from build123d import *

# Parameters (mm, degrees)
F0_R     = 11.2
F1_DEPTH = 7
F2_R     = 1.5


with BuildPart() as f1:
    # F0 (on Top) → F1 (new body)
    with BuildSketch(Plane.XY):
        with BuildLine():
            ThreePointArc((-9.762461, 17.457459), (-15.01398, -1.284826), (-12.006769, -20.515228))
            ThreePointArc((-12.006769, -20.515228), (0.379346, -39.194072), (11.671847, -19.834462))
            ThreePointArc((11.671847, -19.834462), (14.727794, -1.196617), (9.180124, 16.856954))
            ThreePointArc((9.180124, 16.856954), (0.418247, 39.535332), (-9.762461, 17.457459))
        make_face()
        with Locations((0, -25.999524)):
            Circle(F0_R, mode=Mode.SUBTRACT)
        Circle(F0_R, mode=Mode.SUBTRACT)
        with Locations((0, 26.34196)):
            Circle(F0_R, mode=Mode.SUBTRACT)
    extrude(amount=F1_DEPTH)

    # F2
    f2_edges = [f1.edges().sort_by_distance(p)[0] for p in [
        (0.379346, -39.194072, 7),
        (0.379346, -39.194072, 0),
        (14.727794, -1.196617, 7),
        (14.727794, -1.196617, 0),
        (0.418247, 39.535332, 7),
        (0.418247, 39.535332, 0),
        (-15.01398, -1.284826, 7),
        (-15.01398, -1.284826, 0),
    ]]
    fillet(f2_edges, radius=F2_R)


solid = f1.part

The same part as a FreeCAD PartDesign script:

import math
import FreeCAD as App
import Part
import Sketcher
from FreeCAD import Vector


def edges_at(feature, points):
    """Names of the edges that pass closest to the given points."""
    edges = feature.Shape.Edges
    near = lambda p: min(range(len(edges)), key=lambda i: edges[i].distToShape(Part.Vertex(*p))[0])
    return sorted({f"Edge{near(p) + 1}" for p in points})

doc = App.newDocument("Part")
body = doc.addObject("PartDesign::Body", "Body")

sketch1 = body.newObject("Sketcher::SketchObject", "Sketch")
sketch1.AttachmentSupport = (doc.getObject("XY_Plane"), [""])
sketch1.MapMode = "FlatFace"
sketch1.addGeometry([
    Part.ArcOfCircle(Part.Circle(Vector(31, -4, 0), Vector(0, 0, 1), 46), math.radians(152), math.radians(201)),
    Part.ArcOfCircle(Part.Circle(Vector(0, -26, 0), Vector(0, 0, 1), 13), math.radians(155), math.radians(388)),
    Part.ArcOfCircle(Part.Circle(Vector(-27, -4, 0), Vector(0, 0, 1), 41), math.radians(-23), math.radians(30)),
    Part.ArcOfCircle(Part.Circle(Vector(0, 26, 0), Vector(0, 0, 1), 13), math.radians(-46), math.radians(222)),
    Part.Circle(Vector(0, -26, 0), Vector(0, 0, 1), 11),
    Part.Circle(Vector(0, 0, 0), Vector(0, 0, 1), 11),
    Part.Circle(Vector(0, 26, 0), Vector(0, 0, 1), 11),
], False)
sketch1.addConstraint([
    Sketcher.Constraint("Coincident", 0, 2, 1, 1),
    Sketcher.Constraint("Coincident", 1, 2, 2, 1),
    Sketcher.Constraint("Coincident", 2, 2, 3, 1),
    Sketcher.Constraint("Coincident", 3, 2, 0, 1),
    Sketcher.Constraint("Coincident", 5, 3, -1, 1),
    Sketcher.Constraint("Coincident", 4, 3, 1, 3),
    Sketcher.Constraint("Coincident", 6, 3, 3, 3),
    Sketcher.Constraint("Equal", 1, 3),
    Sketcher.Constraint("Equal", 4, 5),
    Sketcher.Constraint("Equal", 5, 6),
    Sketcher.Constraint("PointOnObject", 1, 3, -2),
    Sketcher.Constraint("PointOnObject", 3, 3, -2),
    Sketcher.Constraint("Diameter", 4, 22.4),
    Sketcher.Constraint("Radius", 1, 13.2),
    Sketcher.Constraint("Radius", 2, 41.364972),
    Sketcher.Constraint("Radius", 0, 45.792963),
    Sketcher.Constraint("DistanceY", 1, 3, 0, 3, 22.012902),
    Sketcher.Constraint("DistanceY", 3, 2, 6, 3, 8.884501),
    Sketcher.Constraint("DistanceX", -1, 1, 0, 3, 30.69921),
    Sketcher.Constraint("DistanceY", -1, 1, 3, 3, 26.34196),
    Sketcher.Constraint("DistanceY", 0, 2, 2, 3, 16.515961),
    Sketcher.Constraint("DistanceY", 4, 3, 1, 2, 6.165062),
])
pad1 = body.newObject("PartDesign::Pad", "Pad")
pad1.Profile = sketch1
pad1.Length = 7
doc.recompute()

fillet = body.newObject("PartDesign::Fillet", "Fillet")
fillet.Base = (pad1, edges_at(pad1, [
    (0.379, -39.194, 7),
    (0.379, -39.194, 0),
    (14.728, -1.197, 7),
    (14.728, -1.197, 0),
    (0.418, 39.535, 7),
    (0.418, 39.535, 0),
    (-15.014, -1.285, 7),
    (-15.014, -1.285, 0),
]))
fillet.Radius = 1.5

doc.recompute()
